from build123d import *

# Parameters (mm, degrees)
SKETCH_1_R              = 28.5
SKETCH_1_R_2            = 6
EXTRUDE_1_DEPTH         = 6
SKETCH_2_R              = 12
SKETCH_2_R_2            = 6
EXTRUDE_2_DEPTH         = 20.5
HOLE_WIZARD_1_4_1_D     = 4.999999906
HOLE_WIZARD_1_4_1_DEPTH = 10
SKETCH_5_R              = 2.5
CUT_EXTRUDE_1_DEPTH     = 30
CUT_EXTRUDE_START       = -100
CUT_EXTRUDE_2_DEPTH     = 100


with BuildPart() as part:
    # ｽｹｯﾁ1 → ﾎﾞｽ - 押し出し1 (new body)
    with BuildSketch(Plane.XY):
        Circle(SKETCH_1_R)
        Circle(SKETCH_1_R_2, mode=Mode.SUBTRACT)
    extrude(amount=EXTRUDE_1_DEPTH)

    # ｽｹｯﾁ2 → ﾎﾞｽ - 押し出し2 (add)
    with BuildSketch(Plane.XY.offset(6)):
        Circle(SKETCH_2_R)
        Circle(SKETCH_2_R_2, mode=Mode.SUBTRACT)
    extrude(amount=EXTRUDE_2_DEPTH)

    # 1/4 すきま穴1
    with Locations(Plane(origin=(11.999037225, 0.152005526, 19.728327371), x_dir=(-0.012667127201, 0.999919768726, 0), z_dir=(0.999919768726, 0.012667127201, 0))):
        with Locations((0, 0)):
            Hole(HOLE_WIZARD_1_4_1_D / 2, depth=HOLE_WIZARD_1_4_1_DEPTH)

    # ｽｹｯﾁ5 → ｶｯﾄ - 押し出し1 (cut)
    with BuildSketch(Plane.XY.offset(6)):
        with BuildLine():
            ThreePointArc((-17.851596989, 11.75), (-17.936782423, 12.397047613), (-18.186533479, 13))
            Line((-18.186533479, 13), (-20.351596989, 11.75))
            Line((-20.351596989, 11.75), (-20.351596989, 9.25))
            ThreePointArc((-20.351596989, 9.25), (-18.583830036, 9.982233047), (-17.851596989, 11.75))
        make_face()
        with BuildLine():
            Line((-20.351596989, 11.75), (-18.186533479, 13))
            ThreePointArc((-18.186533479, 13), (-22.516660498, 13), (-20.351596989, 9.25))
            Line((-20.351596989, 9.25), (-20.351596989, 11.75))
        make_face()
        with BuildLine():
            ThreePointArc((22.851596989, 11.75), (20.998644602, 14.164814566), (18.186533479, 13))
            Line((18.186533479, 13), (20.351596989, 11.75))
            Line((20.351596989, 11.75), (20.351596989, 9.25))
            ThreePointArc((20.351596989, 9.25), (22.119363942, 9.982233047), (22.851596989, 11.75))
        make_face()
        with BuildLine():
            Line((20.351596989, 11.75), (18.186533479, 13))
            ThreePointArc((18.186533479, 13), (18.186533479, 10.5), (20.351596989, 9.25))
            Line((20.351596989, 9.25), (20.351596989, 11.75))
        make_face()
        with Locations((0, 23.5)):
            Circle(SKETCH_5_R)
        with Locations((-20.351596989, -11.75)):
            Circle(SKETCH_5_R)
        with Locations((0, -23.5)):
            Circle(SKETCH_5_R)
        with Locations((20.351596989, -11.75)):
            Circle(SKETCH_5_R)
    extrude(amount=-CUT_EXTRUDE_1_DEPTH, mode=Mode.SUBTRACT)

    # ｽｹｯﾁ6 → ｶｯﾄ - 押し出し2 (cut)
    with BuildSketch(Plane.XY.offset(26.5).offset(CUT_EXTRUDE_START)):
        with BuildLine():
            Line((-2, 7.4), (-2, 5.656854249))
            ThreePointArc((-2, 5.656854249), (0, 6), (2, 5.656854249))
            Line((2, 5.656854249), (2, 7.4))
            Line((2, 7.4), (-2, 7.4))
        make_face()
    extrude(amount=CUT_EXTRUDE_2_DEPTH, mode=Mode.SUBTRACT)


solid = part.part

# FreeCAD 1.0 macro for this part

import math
import FreeCAD as App
import Part
import Sketcher
from FreeCAD import Vector

doc = App.newDocument("Part")
body = doc.addObject("PartDesign::Body", "Body")

# Sketch on XY plane
sketch1 = body.newObject("Sketcher::SketchObject", "Sketch")
sketch1.AttachmentSupport = (doc.getObject("XY_Plane"), [""])
sketch1.MapMode = "FlatFace"
sketch1.addGeometry([
    Part.Circle(Vector(0, 0, 0), Vector(0, 0, 1), 28),
    Part.Circle(Vector(0, 0, 0), Vector(0, 0, 1), 6),
], False)
sketch1.addConstraint([
    Sketcher.Constraint("Coincident", 0, 3, -1, 1),
    Sketcher.Constraint("Coincident", 1, 3, -1, 1),
    Sketcher.Constraint("Diameter", 0, 57.0),
    Sketcher.Constraint("Diameter", 1, 12.0),
])
pad1 = body.newObject("PartDesign::Pad", "Pad")
pad1.Profile = sketch1
pad1.Length = 6

# Sketch on XY plane
sketch2 = body.newObject("Sketcher::SketchObject", "Sketch001")
sketch2.AttachmentSupport = (doc.getObject("XY_Plane"), [""])
sketch2.MapMode = "FlatFace"
sketch2.AttachmentOffset = App.Placement(Vector(0, 0, 6), App.Rotation())
sketch2.addGeometry([
    Part.Circle(Vector(0, 0, 0), Vector(0, 0, 1), 12),
    Part.Circle(Vector(0, 0, 0), Vector(0, 0, 1), 6),
], False)
sketch2.addConstraint([
    Sketcher.Constraint("Coincident", 0, 3, -1, 1),
    Sketcher.Constraint("Coincident", 1, 3, -1, 1),
    Sketcher.Constraint("Diameter", 0, 24.0),
    Sketcher.Constraint("Diameter", 1, 12.0),
])
pad2 = body.newObject("PartDesign::Pad", "Pad001")
pad2.Profile = sketch2
pad2.Length = 20.5

# Sketch on an angled plane
sketch3 = body.newObject("Sketcher::SketchObject", "Sketch002")
sketch3.Placement = App.Placement(Vector(11.999037, 0.152006, 0), App.Rotation(Vector(-0.012667127, 0.999919769, 0), Vector(0, 0, 1.000000001), Vector(0.999919769, 0.012667127, 0), "ZXY"))
sketch3.addGeometry(Part.Circle(Vector(0, 19.7, 0), Vector(0, 0, 1), 2.5), False)
sketch3.addConstraint([
    Sketcher.Constraint("PointOnObject", 0, 3, -2),
    Sketcher.Constraint("Diameter", 0, 5.0),
    Sketcher.Constraint("DistanceY", -1, 1, 0, 3, 19.728327),
])
doc.recompute()
hole = body.newObject("PartDesign::Hole", "Hole")
hole.Profile = sketch3
hole.ThreadType = "None"
hole.Diameter = 5
hole.DepthType = "Dimension"
hole.Depth = 10
hole.DrillPoint = "Flat"

# Sketch on XY plane
sketch4 = body.newObject("Sketcher::SketchObject", "Sketch003")
sketch4.AttachmentSupport = (doc.getObject("XY_Plane"), [""])
sketch4.MapMode = "FlatFace"
sketch4.AttachmentOffset = App.Placement(Vector(0, 0, 6), App.Rotation())
sketch4.addGeometry([
    Part.ArcOfCircle(Part.Circle(Vector(-20.4, 11.8, 0), Vector(0, 0, 1), 2.5), math.radians(0), math.radians(30)),  # 0
    Part.ArcOfCircle(Part.Circle(Vector(-20.4, 11.8, 0), Vector(0, 0, 1), 2.5), math.radians(30), math.radians(270)),  # 1
    Part.ArcOfCircle(Part.Circle(Vector(-20.4, 11.8, 0), Vector(0, 0, 1), 2.5), math.radians(-90), math.radians(0)),  # 2
    Part.ArcOfCircle(Part.Circle(Vector(20.4, 11.8, 0), Vector(0, 0, 1), 2.5), math.radians(0), math.radians(150)),  # 3
    Part.ArcOfCircle(Part.Circle(Vector(20.4, 11.8, 0), Vector(0, 0, 1), 2.5), math.radians(150), math.radians(270)),  # 4
    Part.ArcOfCircle(Part.Circle(Vector(20.4, 11.8, 0), Vector(0, 0, 1), 2.5), math.radians(-90), math.radians(0)),  # 5
    Part.Circle(Vector(0, 23.5, 0), Vector(0, 0, 1), 2.5),  # 6
    Part.Circle(Vector(-20.4, -11.8, 0), Vector(0, 0, 1), 2.5),  # 7
    Part.Circle(Vector(0, -23.5, 0), Vector(0, 0, 1), 2.5),  # 8
    Part.Circle(Vector(20.4, -11.8, 0), Vector(0, 0, 1), 2.5),  # 9
], False)
sketch4.addConstraint([
    Sketcher.Constraint("Tangent", 0, 2, 1, 1),
    Sketcher.Constraint("Tangent", 1, 2, 2, 1),
    Sketcher.Constraint("Tangent", 2, 2, 0, 1),
    Sketcher.Constraint("Tangent", 3, 2, 4, 1),
    Sketcher.Constraint("Tangent", 4, 2, 5, 1),
    Sketcher.Constraint("Tangent", 5, 2, 3, 1),
    Sketcher.Constraint("Equal", 2, 3),
    Sketcher.Constraint("Equal", 5, 6),
    Sketcher.Constraint("Equal", 6, 7),
    Sketcher.Constraint("Equal", 7, 8),
    Sketcher.Constraint("Equal", 8, 9),
    Sketcher.Constraint("Symmetric", 3, 3, 7, 3, -1, 1),
    Sketcher.Constraint("Symmetric", 6, 3, 8, 3, -1, 1),
    Sketcher.Constraint("Symmetric", 0, 3, 9, 3, -1, 1),
    Sketcher.Constraint("Symmetric", 0, 3, 3, 3, -2),
    Sketcher.Constraint("PointOnObject", 6, 3, -2),
    Sketcher.Constraint("Horizontal", 5, 3, 2, 2),
    Sketcher.Constraint("Horizontal", 0, 2, 3, 2),
    Sketcher.Constraint("Horizontal", 2, 2, 5, 2),
    Sketcher.Constraint("Vertical", 7, 3, 1, 2),
    Sketcher.Constraint("Vertical", 9, 3, 4, 2),
    Sketcher.Constraint("Diameter", 6, 5.0),
    Sketcher.Constraint("DistanceY", -1, 1, 0, 2, 13.0),
    Sketcher.Constraint("DistanceY", 7, 3, 1, 2, 21.0),
    Sketcher.Constraint("DistanceY", -1, 1, 6, 3, 23.5),
    Sketcher.Constraint("DistanceX", 0, 3, -1, 1, 20.351597),
])
pocket1 = body.newObject("PartDesign::Pocket", "Pocket")
pocket1.Profile = sketch4
pocket1.Length = 30

# Sketch on XY plane
sketch5 = body.newObject("Sketcher::SketchObject", "Sketch004")
sketch5.AttachmentSupport = (doc.getObject("XY_Plane"), [""])
sketch5.MapMode = "FlatFace"
sketch5.AttachmentOffset = App.Placement(Vector(0, 0, -73.5), App.Rotation())
sketch5.addGeometry([
    Part.LineSegment(Vector(-2, 7.4, 0), Vector(-2, 5.7, 0)),
    Part.ArcOfCircle(Part.Circle(Vector(0, 0, 0), Vector(0, 0, 1), 6), math.radians(71), math.radians(109)),
    Part.LineSegment(Vector(2, 5.7, 0), Vector(2, 7.4, 0)),
    Part.LineSegment(Vector(2, 7.4, 0), Vector(-2, 7.4, 0)),
], False)
sketch5.addConstraint([
    Sketcher.Constraint("Coincident", 0, 2, 1, 2),
    Sketcher.Constraint("Coincident", 1, 1, 2, 1),
    Sketcher.Constraint("Coincident", 2, 2, 3, 1),
    Sketcher.Constraint("Coincident", 3, 2, 0, 1),
    Sketcher.Constraint("Vertical", 0),
    Sketcher.Constraint("Vertical", 2),
    Sketcher.Constraint("Horizontal", 3),
    Sketcher.Constraint("Coincident", 1, 3, -1, 1),
    Sketcher.Constraint("Horizontal", 0, 2, 1, 1),
    Sketcher.Constraint("Radius", 1, 6.0),
    Sketcher.Constraint("DistanceX", 3, 2, 3, 1, 4.0),
    Sketcher.Constraint("DistanceY", -1, 1, 2, 2, 7.4),
])
pocket2 = body.newObject("PartDesign::Pocket", "Pocket001")
pocket2.Profile = sketch5
pocket2.Length = 100
pocket2.Reversed = True

doc.recompute()
